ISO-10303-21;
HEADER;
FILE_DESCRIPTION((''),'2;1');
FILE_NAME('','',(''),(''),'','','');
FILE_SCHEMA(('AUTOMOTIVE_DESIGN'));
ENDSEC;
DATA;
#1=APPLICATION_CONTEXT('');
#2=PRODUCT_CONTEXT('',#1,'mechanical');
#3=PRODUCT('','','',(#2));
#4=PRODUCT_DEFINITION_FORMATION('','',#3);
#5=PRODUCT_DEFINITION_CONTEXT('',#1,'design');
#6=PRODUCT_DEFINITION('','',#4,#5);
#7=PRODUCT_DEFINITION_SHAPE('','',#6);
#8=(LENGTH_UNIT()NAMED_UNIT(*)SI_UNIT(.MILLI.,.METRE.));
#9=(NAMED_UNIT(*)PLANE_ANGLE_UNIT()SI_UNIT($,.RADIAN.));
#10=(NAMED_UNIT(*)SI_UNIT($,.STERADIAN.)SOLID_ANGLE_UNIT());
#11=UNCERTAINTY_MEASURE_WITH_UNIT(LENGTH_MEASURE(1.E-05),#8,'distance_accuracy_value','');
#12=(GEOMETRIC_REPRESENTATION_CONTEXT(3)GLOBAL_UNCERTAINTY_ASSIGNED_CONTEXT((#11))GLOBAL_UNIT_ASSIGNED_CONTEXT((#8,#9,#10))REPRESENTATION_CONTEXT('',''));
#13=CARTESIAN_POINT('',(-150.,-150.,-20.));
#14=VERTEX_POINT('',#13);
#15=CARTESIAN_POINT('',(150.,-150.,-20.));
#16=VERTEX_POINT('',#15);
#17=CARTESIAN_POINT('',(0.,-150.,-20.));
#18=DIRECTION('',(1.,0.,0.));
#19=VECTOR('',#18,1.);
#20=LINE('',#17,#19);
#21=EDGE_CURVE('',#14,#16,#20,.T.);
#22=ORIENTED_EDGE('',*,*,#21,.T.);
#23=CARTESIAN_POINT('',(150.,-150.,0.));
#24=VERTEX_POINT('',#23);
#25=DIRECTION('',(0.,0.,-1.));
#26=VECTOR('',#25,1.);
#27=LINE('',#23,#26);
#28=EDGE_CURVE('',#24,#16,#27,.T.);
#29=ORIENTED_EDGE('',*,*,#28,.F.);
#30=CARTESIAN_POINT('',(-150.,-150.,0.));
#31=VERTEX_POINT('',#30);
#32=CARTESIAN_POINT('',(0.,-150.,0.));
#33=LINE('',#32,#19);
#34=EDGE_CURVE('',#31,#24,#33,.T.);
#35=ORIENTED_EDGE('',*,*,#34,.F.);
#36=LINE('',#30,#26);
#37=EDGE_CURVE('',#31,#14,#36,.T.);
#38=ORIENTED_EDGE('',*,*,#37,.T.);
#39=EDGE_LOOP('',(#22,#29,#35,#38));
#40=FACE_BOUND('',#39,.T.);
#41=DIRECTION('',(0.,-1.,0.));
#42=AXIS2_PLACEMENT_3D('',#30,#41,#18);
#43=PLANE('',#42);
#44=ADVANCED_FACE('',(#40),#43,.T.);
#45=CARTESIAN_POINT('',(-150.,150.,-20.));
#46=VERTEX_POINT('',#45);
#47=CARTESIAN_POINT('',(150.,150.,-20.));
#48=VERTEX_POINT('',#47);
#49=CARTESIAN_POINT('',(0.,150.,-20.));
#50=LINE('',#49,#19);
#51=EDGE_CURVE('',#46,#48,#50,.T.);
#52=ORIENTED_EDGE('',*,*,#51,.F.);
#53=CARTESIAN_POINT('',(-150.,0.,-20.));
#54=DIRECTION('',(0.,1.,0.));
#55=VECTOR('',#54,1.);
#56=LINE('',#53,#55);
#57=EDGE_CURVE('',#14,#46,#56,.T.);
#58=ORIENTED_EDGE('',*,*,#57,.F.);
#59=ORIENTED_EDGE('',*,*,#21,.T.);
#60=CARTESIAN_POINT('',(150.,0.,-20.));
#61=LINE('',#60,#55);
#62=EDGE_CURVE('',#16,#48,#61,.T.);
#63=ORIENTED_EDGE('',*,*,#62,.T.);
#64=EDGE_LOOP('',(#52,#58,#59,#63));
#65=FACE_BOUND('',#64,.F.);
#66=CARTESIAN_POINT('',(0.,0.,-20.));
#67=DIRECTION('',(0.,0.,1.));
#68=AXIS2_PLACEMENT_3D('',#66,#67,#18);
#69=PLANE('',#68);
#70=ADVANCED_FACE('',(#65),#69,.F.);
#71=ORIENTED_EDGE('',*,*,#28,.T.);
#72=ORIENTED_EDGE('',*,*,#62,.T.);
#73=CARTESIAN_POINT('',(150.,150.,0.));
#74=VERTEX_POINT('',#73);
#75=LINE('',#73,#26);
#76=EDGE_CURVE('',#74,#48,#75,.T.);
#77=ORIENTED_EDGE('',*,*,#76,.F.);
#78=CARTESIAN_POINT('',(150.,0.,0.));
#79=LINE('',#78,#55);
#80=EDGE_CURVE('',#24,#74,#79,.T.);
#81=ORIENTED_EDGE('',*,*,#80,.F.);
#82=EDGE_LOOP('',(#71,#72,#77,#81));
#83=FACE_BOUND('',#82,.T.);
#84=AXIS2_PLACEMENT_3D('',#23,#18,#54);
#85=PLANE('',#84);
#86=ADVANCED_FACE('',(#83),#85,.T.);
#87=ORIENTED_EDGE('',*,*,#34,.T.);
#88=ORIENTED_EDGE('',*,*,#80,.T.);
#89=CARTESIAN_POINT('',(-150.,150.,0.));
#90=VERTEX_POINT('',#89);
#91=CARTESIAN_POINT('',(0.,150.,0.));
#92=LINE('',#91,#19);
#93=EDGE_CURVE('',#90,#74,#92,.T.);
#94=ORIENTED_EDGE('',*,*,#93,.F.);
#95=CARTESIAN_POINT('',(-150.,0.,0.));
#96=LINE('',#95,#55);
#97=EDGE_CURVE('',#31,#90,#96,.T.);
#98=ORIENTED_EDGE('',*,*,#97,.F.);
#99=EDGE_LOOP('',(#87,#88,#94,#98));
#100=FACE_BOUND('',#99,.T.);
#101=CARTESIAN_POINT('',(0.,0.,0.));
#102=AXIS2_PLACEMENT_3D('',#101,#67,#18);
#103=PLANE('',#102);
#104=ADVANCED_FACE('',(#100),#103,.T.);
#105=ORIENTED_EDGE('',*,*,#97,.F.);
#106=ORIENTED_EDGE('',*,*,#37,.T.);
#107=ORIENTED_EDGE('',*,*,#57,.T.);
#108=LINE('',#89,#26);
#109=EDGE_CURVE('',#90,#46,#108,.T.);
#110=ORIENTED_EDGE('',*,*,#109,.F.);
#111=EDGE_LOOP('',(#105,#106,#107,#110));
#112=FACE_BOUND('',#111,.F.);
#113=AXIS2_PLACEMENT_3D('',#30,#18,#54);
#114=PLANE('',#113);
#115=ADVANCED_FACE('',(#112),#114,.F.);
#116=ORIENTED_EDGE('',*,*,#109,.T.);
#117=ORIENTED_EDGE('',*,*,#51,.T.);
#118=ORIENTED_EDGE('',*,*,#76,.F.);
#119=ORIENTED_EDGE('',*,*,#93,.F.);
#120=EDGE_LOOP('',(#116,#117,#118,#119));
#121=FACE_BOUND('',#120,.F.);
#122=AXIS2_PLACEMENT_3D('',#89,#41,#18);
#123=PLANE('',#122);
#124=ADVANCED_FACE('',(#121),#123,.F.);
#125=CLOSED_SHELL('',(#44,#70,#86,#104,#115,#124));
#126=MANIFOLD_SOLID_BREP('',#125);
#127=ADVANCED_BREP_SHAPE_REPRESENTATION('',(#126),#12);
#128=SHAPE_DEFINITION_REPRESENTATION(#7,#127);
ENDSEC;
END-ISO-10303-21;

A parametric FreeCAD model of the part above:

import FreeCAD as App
import Part
import Sketcher


def add_polygon(sketch, points):
    """Adds a closed chain of lines whose ends are joined by coincident constraints."""
    first, n = sketch.GeometryCount, len(points)
    for a, b in zip(points, points[1:] + points[:1]):
        sketch.addGeometry(Part.LineSegment(App.Vector(*a, 0), App.Vector(*b, 0)), False)
    for i in range(n):
        sketch.addConstraint(Sketcher.Constraint("Coincident", first + i, 2, first + (i + 1) % n, 1))

doc = App.newDocument("Part")
body = doc.addObject("PartDesign::Body", "Body")

# Sketch on XY plane
sketch1 = doc.addObject("Sketcher::SketchObject", "Sketch")
body.addObject(sketch1)
sketch1.AttachmentSupport = (doc.XY_Plane, [""])
sketch1.MapMode = "FlatFace"
add_polygon(sketch1, [(-150, 150), (-150, -150), (150, -150), (150, 150)])  # lines 0-3
sketch1.addConstraint(Sketcher.Constraint("Vertical", 0))
sketch1.addConstraint(Sketcher.Constraint("Horizontal", 1))
sketch1.addConstraint(Sketcher.Constraint("Vertical", 2))
sketch1.addConstraint(Sketcher.Constraint("Horizontal", 3))
sketch1.addConstraint(Sketcher.Constraint("Symmetric", 0, 2, 2, 2, -1, 1))
sketch1.addConstraint(Sketcher.Constraint("Equal", 3, 0))
sketch1.addConstraint(Sketcher.Constraint("DistanceX", 1, 1, 1, 2, 300.0))
pad1 = doc.addObject("PartDesign::Pad", "Pad")
body.addObject(pad1)
pad1.Profile = sketch1
pad1.Length = 20
pad1.Reversed = True

doc.recompute()
